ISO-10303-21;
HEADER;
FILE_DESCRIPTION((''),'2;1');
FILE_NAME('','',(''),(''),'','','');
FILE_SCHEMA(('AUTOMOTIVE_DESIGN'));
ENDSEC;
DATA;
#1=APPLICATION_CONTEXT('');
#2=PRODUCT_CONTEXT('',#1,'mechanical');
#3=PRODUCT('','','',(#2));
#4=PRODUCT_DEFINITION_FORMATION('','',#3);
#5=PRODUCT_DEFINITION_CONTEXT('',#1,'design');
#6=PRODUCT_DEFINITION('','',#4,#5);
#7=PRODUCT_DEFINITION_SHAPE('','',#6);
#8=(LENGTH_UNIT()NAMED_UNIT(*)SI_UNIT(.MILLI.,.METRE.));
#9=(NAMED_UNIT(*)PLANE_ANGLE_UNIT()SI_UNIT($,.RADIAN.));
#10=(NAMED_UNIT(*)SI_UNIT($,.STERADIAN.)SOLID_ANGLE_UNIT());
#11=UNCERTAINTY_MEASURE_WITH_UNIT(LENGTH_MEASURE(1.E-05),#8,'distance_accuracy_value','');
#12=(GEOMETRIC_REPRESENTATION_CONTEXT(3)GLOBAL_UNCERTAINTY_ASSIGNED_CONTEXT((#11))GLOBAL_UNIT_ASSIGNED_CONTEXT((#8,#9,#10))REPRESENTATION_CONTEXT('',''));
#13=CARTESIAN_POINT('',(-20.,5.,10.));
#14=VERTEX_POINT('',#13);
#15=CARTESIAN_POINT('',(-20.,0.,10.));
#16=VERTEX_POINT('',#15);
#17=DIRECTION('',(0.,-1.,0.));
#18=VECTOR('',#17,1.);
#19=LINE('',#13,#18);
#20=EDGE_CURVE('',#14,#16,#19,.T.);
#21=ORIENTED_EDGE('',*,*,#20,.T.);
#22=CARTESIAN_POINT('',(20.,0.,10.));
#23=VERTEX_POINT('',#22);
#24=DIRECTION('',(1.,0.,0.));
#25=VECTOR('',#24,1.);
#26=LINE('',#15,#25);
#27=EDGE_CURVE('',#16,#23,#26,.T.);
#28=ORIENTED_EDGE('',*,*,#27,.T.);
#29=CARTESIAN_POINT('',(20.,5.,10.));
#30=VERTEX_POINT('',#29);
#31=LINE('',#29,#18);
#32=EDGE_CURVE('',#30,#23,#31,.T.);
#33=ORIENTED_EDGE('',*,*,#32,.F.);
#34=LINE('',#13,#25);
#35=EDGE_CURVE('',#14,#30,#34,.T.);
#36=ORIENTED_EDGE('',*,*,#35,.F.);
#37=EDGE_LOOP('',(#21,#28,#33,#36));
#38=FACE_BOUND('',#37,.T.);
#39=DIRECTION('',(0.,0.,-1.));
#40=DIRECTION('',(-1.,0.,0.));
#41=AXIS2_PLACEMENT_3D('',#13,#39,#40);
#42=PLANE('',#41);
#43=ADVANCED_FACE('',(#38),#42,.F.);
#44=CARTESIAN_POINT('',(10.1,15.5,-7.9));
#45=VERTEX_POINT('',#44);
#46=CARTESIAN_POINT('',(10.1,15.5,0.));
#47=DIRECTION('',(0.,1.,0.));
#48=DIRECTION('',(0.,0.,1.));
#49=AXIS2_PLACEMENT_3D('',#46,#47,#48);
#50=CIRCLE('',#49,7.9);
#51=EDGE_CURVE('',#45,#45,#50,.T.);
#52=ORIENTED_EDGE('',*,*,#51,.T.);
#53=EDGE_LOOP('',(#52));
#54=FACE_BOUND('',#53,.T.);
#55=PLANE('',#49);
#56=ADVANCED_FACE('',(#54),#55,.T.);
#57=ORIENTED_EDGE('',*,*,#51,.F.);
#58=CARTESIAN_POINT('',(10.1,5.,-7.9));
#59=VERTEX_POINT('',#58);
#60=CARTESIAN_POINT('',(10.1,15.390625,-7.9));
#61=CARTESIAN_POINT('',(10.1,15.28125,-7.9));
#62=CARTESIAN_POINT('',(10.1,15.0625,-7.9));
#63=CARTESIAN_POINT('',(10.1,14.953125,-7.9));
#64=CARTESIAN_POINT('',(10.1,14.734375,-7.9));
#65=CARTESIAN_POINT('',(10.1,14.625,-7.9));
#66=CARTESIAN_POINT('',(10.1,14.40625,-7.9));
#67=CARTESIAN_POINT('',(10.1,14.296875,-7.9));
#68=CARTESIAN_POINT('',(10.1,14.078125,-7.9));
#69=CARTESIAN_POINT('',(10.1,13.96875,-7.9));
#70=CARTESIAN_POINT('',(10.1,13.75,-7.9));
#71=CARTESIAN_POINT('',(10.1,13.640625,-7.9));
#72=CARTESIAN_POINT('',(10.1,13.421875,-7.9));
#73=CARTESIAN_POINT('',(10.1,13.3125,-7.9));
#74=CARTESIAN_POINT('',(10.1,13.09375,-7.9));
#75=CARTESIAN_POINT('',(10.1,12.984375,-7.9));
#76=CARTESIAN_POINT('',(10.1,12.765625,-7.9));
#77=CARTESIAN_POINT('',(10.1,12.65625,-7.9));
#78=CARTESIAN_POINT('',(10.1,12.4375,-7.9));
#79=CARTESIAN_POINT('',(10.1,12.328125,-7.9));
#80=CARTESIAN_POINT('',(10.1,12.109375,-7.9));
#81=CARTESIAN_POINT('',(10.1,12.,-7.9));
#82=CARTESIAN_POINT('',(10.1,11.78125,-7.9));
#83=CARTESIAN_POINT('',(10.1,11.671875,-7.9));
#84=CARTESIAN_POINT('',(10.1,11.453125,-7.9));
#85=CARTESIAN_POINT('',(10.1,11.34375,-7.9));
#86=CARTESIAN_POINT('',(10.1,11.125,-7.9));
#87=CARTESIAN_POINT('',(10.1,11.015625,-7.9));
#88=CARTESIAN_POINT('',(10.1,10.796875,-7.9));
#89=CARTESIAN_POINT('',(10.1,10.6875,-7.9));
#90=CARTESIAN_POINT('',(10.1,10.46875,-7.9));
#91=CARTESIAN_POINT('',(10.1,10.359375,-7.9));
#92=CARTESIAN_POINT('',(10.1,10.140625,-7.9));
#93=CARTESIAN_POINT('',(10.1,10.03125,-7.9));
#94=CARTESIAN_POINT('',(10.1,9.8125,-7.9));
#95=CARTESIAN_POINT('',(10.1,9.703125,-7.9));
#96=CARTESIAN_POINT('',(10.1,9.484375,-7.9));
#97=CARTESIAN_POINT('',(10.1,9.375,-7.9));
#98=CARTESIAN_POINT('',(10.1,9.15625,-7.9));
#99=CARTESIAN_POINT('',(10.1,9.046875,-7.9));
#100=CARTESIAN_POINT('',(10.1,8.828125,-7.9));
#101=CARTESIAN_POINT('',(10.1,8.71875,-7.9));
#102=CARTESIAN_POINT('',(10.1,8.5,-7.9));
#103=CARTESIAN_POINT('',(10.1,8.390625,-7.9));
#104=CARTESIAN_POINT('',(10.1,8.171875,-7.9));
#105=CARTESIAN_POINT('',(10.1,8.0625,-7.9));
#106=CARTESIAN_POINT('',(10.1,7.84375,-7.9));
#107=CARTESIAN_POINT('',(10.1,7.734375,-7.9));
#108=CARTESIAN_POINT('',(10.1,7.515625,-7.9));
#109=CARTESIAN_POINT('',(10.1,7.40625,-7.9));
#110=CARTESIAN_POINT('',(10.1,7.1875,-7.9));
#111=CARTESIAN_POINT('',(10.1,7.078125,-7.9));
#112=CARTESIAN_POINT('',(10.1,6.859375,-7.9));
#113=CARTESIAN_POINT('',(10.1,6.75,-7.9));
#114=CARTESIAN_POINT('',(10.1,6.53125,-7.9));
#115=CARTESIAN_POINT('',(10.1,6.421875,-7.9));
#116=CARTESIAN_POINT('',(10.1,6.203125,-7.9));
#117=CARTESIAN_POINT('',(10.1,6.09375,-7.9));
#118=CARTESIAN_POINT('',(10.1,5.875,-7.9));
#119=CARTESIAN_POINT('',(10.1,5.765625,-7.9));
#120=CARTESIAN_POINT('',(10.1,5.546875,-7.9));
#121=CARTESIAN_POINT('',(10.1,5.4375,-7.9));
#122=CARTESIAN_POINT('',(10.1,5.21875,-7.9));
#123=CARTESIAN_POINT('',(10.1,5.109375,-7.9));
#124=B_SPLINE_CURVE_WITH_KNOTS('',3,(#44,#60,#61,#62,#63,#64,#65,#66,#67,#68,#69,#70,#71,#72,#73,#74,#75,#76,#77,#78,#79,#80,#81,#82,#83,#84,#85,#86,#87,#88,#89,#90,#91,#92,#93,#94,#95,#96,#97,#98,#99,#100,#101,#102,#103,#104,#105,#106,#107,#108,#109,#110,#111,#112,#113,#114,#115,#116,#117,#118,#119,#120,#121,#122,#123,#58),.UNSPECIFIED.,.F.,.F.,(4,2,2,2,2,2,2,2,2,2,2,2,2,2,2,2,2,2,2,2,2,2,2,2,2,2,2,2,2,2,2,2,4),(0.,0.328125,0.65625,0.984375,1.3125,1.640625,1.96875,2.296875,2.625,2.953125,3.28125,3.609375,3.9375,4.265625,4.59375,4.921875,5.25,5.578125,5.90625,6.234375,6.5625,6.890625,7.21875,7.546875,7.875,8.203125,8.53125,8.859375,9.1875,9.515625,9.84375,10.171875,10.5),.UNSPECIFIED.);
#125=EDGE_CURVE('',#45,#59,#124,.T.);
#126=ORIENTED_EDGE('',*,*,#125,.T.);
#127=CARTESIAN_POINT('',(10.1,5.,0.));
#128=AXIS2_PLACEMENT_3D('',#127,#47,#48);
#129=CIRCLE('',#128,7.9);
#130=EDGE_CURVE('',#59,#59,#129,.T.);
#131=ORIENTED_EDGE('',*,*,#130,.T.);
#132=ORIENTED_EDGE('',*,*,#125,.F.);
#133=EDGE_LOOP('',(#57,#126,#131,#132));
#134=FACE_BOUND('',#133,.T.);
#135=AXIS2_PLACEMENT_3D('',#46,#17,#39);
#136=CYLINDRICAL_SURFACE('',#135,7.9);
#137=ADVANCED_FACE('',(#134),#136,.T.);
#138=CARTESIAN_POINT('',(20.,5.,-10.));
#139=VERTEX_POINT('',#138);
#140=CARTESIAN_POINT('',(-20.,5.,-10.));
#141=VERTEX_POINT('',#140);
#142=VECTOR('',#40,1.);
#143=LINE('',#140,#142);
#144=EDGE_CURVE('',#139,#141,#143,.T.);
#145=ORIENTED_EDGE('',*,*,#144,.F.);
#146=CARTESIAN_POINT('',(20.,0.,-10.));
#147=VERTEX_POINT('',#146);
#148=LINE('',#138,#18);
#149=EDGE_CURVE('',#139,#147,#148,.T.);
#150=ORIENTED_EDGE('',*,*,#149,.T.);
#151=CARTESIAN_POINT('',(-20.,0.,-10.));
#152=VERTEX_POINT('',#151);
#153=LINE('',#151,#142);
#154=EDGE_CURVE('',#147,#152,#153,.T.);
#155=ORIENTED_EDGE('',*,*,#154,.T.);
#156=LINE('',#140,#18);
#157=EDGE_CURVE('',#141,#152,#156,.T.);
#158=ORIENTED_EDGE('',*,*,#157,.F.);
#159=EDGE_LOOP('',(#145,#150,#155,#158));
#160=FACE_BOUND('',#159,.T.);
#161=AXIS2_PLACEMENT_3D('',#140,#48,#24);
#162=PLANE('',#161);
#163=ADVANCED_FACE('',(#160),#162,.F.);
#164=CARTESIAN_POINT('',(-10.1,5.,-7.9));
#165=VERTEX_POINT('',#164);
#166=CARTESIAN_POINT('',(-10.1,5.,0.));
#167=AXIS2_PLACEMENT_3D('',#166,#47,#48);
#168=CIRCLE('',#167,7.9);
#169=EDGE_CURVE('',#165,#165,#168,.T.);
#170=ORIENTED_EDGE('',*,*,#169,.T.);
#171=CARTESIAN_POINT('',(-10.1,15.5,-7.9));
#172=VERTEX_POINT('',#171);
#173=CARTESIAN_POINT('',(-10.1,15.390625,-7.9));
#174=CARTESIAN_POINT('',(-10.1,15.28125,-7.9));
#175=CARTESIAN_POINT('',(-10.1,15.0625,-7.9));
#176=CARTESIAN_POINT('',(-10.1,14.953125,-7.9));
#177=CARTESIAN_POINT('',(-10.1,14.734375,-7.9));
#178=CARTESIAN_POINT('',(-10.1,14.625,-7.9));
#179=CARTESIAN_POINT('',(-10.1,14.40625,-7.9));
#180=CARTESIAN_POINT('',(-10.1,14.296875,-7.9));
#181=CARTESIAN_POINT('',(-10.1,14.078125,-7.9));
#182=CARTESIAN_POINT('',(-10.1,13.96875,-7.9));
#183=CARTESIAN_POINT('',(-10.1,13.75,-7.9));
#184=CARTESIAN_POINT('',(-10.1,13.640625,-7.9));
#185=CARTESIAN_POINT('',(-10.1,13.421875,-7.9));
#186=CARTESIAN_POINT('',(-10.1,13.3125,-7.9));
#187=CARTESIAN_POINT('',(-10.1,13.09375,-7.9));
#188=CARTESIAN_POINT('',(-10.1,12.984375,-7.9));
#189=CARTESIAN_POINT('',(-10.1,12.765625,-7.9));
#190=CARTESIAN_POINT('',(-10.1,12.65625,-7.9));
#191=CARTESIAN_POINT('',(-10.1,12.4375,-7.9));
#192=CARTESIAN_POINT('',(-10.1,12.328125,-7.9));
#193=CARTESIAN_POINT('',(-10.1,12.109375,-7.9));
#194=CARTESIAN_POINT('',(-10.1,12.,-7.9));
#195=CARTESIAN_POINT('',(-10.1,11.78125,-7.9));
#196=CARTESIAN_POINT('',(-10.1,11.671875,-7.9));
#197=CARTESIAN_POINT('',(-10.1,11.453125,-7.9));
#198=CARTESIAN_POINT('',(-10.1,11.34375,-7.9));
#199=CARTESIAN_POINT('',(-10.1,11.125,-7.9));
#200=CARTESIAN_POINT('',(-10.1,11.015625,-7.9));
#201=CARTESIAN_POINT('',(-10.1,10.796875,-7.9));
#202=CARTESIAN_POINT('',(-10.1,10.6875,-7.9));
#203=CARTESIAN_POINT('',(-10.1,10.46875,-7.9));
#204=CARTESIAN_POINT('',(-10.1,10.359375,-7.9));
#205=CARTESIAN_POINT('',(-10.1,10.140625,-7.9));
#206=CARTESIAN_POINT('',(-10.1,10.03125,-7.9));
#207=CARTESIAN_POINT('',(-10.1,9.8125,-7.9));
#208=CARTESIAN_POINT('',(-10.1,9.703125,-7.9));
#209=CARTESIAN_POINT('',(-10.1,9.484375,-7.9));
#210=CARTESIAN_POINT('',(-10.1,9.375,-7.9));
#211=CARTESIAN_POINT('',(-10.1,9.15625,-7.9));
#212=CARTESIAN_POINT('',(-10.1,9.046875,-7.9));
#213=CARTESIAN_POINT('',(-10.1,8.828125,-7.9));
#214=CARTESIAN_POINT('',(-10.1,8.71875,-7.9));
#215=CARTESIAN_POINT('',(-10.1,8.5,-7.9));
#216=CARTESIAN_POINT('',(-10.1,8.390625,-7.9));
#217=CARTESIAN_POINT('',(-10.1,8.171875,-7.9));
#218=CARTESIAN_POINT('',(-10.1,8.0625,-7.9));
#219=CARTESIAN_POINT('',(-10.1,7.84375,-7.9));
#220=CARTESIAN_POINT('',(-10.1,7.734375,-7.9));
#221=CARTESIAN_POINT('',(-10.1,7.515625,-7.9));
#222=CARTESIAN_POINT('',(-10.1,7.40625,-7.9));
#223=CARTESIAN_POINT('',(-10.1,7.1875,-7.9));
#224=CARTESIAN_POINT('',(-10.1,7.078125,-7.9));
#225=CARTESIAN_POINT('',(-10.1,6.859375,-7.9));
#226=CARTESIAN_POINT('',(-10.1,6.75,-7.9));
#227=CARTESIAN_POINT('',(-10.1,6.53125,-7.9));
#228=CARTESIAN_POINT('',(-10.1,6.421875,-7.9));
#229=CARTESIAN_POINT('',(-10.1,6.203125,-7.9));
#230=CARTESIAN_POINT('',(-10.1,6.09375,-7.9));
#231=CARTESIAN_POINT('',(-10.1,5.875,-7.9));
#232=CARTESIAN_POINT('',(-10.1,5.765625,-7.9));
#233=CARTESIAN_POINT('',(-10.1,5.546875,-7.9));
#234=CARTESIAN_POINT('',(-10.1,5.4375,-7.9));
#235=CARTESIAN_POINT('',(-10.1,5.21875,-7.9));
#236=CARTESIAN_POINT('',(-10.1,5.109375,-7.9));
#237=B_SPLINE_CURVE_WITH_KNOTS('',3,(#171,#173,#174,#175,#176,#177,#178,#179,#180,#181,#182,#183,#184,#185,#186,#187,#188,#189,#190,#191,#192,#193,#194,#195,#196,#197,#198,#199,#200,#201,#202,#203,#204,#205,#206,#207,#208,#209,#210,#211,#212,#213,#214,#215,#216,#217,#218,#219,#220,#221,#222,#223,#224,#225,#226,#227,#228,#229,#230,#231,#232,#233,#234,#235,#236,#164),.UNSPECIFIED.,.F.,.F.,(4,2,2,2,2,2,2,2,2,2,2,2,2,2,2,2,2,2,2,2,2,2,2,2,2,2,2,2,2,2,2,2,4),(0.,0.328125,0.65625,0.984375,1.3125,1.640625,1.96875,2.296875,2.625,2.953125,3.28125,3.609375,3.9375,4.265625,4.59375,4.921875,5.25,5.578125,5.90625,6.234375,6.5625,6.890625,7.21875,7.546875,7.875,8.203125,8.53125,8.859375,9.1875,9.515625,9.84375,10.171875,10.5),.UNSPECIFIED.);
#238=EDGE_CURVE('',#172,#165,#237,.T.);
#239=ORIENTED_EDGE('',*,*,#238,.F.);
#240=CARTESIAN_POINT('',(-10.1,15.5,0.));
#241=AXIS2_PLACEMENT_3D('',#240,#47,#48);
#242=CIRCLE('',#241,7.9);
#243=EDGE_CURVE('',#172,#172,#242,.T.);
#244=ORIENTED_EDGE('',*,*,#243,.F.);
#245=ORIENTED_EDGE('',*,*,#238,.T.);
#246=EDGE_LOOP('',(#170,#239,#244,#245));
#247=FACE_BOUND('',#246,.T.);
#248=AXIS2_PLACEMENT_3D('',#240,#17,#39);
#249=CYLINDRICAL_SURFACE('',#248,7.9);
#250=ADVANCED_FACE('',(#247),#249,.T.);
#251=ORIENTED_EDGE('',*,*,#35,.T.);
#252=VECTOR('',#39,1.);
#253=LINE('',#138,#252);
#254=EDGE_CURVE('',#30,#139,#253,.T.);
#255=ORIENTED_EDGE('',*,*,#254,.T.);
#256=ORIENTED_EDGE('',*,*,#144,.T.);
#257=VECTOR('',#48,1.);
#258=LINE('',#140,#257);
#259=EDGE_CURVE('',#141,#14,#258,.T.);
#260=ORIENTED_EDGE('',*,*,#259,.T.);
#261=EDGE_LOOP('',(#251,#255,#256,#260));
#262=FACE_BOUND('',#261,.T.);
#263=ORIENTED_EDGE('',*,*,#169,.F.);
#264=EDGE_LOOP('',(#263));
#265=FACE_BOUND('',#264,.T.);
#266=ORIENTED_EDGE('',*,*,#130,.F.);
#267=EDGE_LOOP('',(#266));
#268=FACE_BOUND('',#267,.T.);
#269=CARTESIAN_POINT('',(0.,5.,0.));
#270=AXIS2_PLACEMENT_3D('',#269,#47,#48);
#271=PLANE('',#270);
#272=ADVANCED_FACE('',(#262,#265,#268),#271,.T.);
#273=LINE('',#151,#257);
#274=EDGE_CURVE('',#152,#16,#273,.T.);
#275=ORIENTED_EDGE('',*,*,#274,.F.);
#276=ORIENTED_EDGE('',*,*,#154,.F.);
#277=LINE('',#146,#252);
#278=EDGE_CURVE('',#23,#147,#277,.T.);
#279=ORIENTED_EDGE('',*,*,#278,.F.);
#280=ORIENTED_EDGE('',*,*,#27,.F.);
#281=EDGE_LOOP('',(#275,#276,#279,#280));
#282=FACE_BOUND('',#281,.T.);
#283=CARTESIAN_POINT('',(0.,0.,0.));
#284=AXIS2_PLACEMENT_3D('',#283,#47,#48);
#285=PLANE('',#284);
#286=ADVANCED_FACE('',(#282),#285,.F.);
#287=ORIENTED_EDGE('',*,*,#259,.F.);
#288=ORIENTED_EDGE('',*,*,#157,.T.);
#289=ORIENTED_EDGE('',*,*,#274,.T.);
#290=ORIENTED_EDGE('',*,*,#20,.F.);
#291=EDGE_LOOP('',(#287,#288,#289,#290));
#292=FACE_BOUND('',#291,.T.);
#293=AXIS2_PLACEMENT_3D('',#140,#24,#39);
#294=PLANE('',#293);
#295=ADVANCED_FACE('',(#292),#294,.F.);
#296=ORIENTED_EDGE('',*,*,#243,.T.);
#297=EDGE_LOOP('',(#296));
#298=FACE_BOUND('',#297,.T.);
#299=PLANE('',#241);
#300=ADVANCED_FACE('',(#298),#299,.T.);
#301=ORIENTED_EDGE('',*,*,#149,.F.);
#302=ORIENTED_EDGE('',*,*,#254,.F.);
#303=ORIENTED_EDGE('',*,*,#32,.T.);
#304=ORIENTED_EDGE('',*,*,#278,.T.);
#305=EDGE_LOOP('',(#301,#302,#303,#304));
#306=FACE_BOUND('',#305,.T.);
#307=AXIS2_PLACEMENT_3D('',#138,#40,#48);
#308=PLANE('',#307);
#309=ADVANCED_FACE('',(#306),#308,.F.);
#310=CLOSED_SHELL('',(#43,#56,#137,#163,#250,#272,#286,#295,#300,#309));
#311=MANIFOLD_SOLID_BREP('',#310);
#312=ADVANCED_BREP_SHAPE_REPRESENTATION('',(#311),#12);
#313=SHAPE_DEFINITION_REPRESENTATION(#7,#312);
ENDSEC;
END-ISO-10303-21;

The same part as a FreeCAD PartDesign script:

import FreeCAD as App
import Part
import Sketcher


def add_polygon(sketch, points):
    """Adds a closed chain of lines whose ends are joined by coincident constraints."""
    first, n = sketch.GeometryCount, len(points)
    for a, b in zip(points, points[1:] + points[:1]):
        sketch.addGeometry(Part.LineSegment(App.Vector(*a, 0), App.Vector(*b, 0)), False)
    for i in range(n):
        sketch.addConstraint(Sketcher.Constraint("Coincident", first + i, 2, first + (i + 1) % n, 1))

doc = App.newDocument("Part")
params = doc.addObject("Spreadsheet::Sheet", "Params")
for row, (alias, value) in enumerate([
    ("sketch1_width", "40 mm"),
    ("sketch1_height", "20 mm"),
    ("pad1_length", "5 mm"),
    ("sketch2_diameter", "15.8 mm"),
    ("pad2_length", "10.5 mm"),
], start=1):
    params.set(f"A{row}", alias)
    params.set(f"B{row}", "=" + value)
    params.setAlias(f"B{row}", alias)

body = doc.addObject("PartDesign::Body", "Body")

sketch1 = doc.addObject("Sketcher::SketchObject", "Sketch")
body.addObject(sketch1)
sketch1.AttachmentSupport = (doc.XZ_Plane, [""])
sketch1.MapMode = "FlatFace"
add_polygon(sketch1, [(-20, -10), (-20, 10), (20, 10), (20, -10)])
sketch1.addConstraint([
    Sketcher.Constraint("Vertical", 0),
    Sketcher.Constraint("Horizontal", 1),
    Sketcher.Constraint("Vertical", 2),
    Sketcher.Constraint("Horizontal", 3),
    Sketcher.Constraint("Symmetric", 0, 2, 2, 2, -1, 1),
    Sketcher.Constraint("DistanceX", 1, 1, 1, 2, 40.0),
    Sketcher.Constraint("DistanceY", 0, 1, 0, 2, 20.0),
])
sketch1.setExpression("Constraints[9]", "Params.sketch1_width")
sketch1.setExpression("Constraints[10]", "Params.sketch1_height")
pad1 = doc.addObject("PartDesign::Pad", "Pad")
body.addObject(pad1)
pad1.Profile = sketch1
pad1.setExpression("Length", "Params.pad1_length")
pad1.Reversed = True

sketch2 = doc.addObject("Sketcher::SketchObject", "Sketch001")
body.addObject(sketch2)
sketch2.AttachmentSupport = (doc.XZ_Plane, [""])
sketch2.MapMode = "FlatFace"
sketch2.AttachmentOffset = App.Placement(App.Vector(0, 0, -5), App.Rotation())
sketch2.addGeometry([
    Part.Circle(App.Vector(-10, 0, 0), App.Vector(0, 0, 1), 8),
    Part.Circle(App.Vector(10, 0, 0), App.Vector(0, 0, 1), 8),
], False)
sketch2.addConstraint([
    Sketcher.Constraint("Equal", 0, 1),
    Sketcher.Constraint("Symmetric", 0, 3, 1, 3, -1, 1),
    Sketcher.Constraint("PointOnObject", 0, 3, -1),
    Sketcher.Constraint("Diameter", 0, 15.8),
    Sketcher.Constraint("DistanceX", 0, 3, -1, 1, 10.1),
])
sketch2.setExpression("Constraints[3]", "Params.sketch2_diameter")
pad2 = doc.addObject("PartDesign::Pad", "Pad001")
body.addObject(pad2)
pad2.Profile = sketch2
pad2.setExpression("Length", "Params.pad2_length")
pad2.Reversed = True

doc.recompute()
